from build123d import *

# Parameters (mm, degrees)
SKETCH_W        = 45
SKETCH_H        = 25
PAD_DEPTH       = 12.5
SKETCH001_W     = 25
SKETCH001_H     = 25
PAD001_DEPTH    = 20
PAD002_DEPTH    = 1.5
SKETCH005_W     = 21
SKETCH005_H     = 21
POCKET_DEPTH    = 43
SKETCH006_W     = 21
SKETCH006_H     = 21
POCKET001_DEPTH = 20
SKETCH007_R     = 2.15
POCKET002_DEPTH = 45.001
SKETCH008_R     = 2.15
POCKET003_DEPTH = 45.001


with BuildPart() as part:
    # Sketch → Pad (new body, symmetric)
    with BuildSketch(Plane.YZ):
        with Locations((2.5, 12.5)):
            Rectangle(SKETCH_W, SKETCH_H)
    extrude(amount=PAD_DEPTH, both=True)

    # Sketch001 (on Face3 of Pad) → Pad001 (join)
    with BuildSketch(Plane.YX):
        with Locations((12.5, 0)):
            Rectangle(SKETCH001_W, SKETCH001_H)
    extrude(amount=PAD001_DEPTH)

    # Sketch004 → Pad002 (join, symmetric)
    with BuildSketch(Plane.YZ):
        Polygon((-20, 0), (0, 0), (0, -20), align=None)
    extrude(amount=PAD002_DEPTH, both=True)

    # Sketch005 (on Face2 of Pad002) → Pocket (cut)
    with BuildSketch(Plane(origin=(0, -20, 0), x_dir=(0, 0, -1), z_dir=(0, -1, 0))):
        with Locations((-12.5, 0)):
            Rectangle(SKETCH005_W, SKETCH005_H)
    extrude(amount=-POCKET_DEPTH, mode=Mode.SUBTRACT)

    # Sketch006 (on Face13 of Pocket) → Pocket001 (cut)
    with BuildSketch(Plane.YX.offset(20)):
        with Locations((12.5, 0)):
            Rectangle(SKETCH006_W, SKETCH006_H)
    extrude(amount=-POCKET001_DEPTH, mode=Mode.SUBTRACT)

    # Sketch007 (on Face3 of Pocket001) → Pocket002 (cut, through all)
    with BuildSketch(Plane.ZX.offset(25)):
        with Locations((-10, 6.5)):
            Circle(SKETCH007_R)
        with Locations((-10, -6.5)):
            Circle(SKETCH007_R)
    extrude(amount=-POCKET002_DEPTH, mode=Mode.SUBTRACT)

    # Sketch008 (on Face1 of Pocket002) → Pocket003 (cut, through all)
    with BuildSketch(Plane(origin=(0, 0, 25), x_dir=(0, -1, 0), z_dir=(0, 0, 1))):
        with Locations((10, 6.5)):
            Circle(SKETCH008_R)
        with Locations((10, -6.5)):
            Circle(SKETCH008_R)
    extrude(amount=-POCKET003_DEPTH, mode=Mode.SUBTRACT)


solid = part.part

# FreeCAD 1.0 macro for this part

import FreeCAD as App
import Part
import Sketcher
Q = App.Units.Quantity

doc = App.newDocument("Part")
body = doc.addObject("PartDesign::Body", "Body")

# Sketch on YZ plane
sketch1 = body.newObject("Sketcher::SketchObject", "Sketch")
sketch1.AttachmentSupport = (doc.getObject("YZ_Plane"), [""])
sketch1.MapMode = "FlatFace"
sketch1.addGeometry([
    Part.LineSegment(App.Vector(-20, 25, 0), App.Vector(-20, 0, 0)),
    Part.LineSegment(App.Vector(-20, 0, 0), App.Vector(25, 0, 0)),
    Part.LineSegment(App.Vector(25, 0, 0), App.Vector(25, 25, 0)),
    Part.LineSegment(App.Vector(25, 25, 0), App.Vector(-20, 25, 0)),
], False)
sketch1.addConstraint([
    Sketcher.Constraint("Coincident", 0, 2, 1, 1),
    Sketcher.Constraint("Coincident", 1, 2, 2, 1),
    Sketcher.Constraint("Coincident", 2, 2, 3, 1),
    Sketcher.Constraint("Coincident", 3, 2, 0, 1),
    Sketcher.Constraint("Vertical", 0),
    Sketcher.Constraint("Horizontal", 1),
    Sketcher.Constraint("Vertical", 2),
    Sketcher.Constraint("Horizontal", 3),
    Sketcher.Constraint("PointOnObject", 0, 2, -1),
    Sketcher.Constraint("DistanceX", 1, 1, 1, 2, Q("45 mm")),
    Sketcher.Constraint("DistanceY", 0, 2, 0, 1, Q("25 mm")),
    Sketcher.Constraint("DistanceX", 0, 2, -1, 1, Q("20 mm")),
])
pad1 = body.newObject("PartDesign::Pad", "Pad")
pad1.Profile = sketch1
pad1.Length = 25
pad1.Midplane = True

# Sketch on XY plane
sketch2 = body.newObject("Sketcher::SketchObject", "Sketch001")
sketch2.AttachmentSupport = (doc.getObject("XY_Plane"), [""])
sketch2.MapMode = "FlatFace"
sketch2.addGeometry([
    Part.LineSegment(App.Vector(12, 0, 0), App.Vector(-12, 0, 0)),
    Part.LineSegment(App.Vector(-12, 0, 0), App.Vector(-12, 25, 0)),
    Part.LineSegment(App.Vector(-12, 25, 0), App.Vector(12, 25, 0)),
    Part.LineSegment(App.Vector(12, 25, 0), App.Vector(12, 0, 0)),
], False)
sketch2.addConstraint([
    Sketcher.Constraint("Coincident", 0, 2, 1, 1),
    Sketcher.Constraint("Coincident", 1, 2, 2, 1),
    Sketcher.Constraint("Coincident", 2, 2, 3, 1),
    Sketcher.Constraint("Coincident", 3, 2, 0, 1),
    Sketcher.Constraint("Horizontal", 0),
    Sketcher.Constraint("Vertical", 1),
    Sketcher.Constraint("Horizontal", 2),
    Sketcher.Constraint("Vertical", 3),
    Sketcher.Constraint("Symmetric", 0, 2, 3, 2, -1, 1),
    Sketcher.Constraint("Equal", 2, 1),
    Sketcher.Constraint("DistanceX", 0, 2, 0, 1, Q("25 mm")),
])
pad2 = body.newObject("PartDesign::Pad", "Pad001")
pad2.Profile = sketch2
pad2.Length = 20
pad2.Reversed = True

# Sketch on YZ plane
sketch3 = body.newObject("Sketcher::SketchObject", "Sketch002")
sketch3.AttachmentSupport = (doc.getObject("YZ_Plane"), [""])
sketch3.MapMode = "FlatFace"
sketch3.addGeometry([
    Part.LineSegment(App.Vector(0, 0, 0), App.Vector(-20, 0, 0)),
    Part.LineSegment(App.Vector(-20, 0, 0), App.Vector(0, -20, 0)),
    Part.LineSegment(App.Vector(0, -20, 0), App.Vector(0, 0, 0)),
], False)
sketch3.addConstraint([
    Sketcher.Constraint("Coincident", 0, 2, 1, 1),
    Sketcher.Constraint("Coincident", 1, 2, 2, 1),
    Sketcher.Constraint("Coincident", 2, 2, 0, 1),
    Sketcher.Constraint("Horizontal", 0),
    Sketcher.Constraint("Vertical", 2),
    Sketcher.Constraint("Coincident", 2, 2, -1, 1),
    Sketcher.Constraint("Equal", 0, 2),
    Sketcher.Constraint("DistanceX", 0, 2, 0, 1, Q("20 mm")),
])
pad3 = body.newObject("PartDesign::Pad", "Pad002")
pad3.Profile = sketch3
pad3.Length = 3
pad3.Midplane = True

# Sketch on XZ plane
sketch4 = body.newObject("Sketcher::SketchObject", "Sketch003")
sketch4.AttachmentSupport = (doc.getObject("XZ_Plane"), [""])
sketch4.MapMode = "FlatFace"
sketch4.AttachmentOffset = App.Placement(App.Vector(0, 0, 20), App.Rotation())
sketch4.addGeometry([
    Part.LineSegment(App.Vector(10, 23, 0), App.Vector(-10, 23, 0)),
    Part.LineSegment(App.Vector(-10, 23, 0), App.Vector(-10, 2, 0)),
    Part.LineSegment(App.Vector(-10, 2, 0), App.Vector(10, 2, 0)),
    Part.LineSegment(App.Vector(10, 2, 0), App.Vector(10, 23, 0)),
], False)
sketch4.addConstraint([
    Sketcher.Constraint("Coincident", 0, 2, 1, 1),
    Sketcher.Constraint("Coincident", 1, 2, 2, 1),
    Sketcher.Constraint("Coincident", 2, 2, 3, 1),
    Sketcher.Constraint("Coincident", 3, 2, 0, 1),
    Sketcher.Constraint("Horizontal", 0),
    Sketcher.Constraint("Vertical", 1),
    Sketcher.Constraint("Horizontal", 2),
    Sketcher.Constraint("Vertical", 3),
    Sketcher.Constraint("Equal", 2, 1),
    Sketcher.Constraint("DistanceX", 0, 2, 0, 1, Q("21 mm")),
    Sketcher.Constraint("DistanceY", -1, 1, 0, 2, Q("23 mm")),
    Sketcher.Constraint("DistanceX", 0, 2, -1, 1, Q("10.5 mm")),
])
pocket1 = body.newObject("PartDesign::Pocket", "Pocket")
pocket1.Profile = sketch4
pocket1.Length = 43

# Sketch on XY plane
sketch5 = body.newObject("Sketcher::SketchObject", "Sketch004")
sketch5.AttachmentSupport = (doc.getObject("XY_Plane"), [""])
sketch5.MapMode = "FlatFace"
sketch5.AttachmentOffset = App.Placement(App.Vector(0, 0, -20), App.Rotation())
sketch5.addGeometry([
    Part.LineSegment(App.Vector(10, 2, 0), App.Vector(-10, 2, 0)),
    Part.LineSegment(App.Vector(-10, 2, 0), App.Vector(-10, 23, 0)),
    Part.LineSegment(App.Vector(-10, 23, 0), App.Vector(10, 23, 0)),
    Part.LineSegment(App.Vector(10, 23, 0), App.Vector(10, 2, 0)),
], False)
sketch5.addConstraint([
    Sketcher.Constraint("Coincident", 0, 2, 1, 1),
    Sketcher.Constraint("Coincident", 1, 2, 2, 1),
    Sketcher.Constraint("Coincident", 2, 2, 3, 1),
    Sketcher.Constraint("Coincident", 3, 2, 0, 1),
    Sketcher.Constraint("Horizontal", 0),
    Sketcher.Constraint("Vertical", 1),
    Sketcher.Constraint("Horizontal", 2),
    Sketcher.Constraint("Vertical", 3),
    Sketcher.Constraint("Equal", 2, 1),
    Sketcher.Constraint("DistanceX", 0, 2, 0, 1, Q("21 mm")),
    Sketcher.Constraint("DistanceY", -1, 1, 0, 2, Q("2 mm")),
    Sketcher.Constraint("DistanceX", 0, 2, -1, 1, Q("10.5 mm")),
])
pocket2 = body.newObject("PartDesign::Pocket", "Pocket001")
pocket2.Profile = sketch5
pocket2.Length = 20
pocket2.Reversed = True

# Sketch on XZ plane
sketch6 = body.newObject("Sketcher::SketchObject", "Sketch005")
sketch6.AttachmentSupport = (doc.getObject("XZ_Plane"), [""])
sketch6.MapMode = "FlatFace"
sketch6.AttachmentOffset = App.Placement(App.Vector(0, 0, -25), App.Rotation())
sketch6.addGeometry([
    Part.Circle(App.Vector(6.5, -10, 0), App.Vector(0, 0, 1), 2.1),
    Part.Circle(App.Vector(-6.5, -10, 0), App.Vector(0, 0, 1), 2.1),
], False)
sketch6.addConstraint([
    Sketcher.Constraint("Equal", 0, 1),
    Sketcher.Constraint("Symmetric", 0, 3, 1, 3, -2),
    Sketcher.Constraint("Diameter", 0, Q("4.3 mm")),
    Sketcher.Constraint("DistanceY", 0, 3, -1, 1, Q("10 mm")),
    Sketcher.Constraint("DistanceX", 1, 3, 0, 3, Q("13 mm")),
])
pocket3 = body.newObject("PartDesign::Pocket", "Pocket002")
pocket3.Profile = sketch6
pocket3.Type = "ThroughAll"
pocket3.Reversed = True

# Sketch on XY plane
sketch7 = body.newObject("Sketcher::SketchObject", "Sketch006")
sketch7.AttachmentSupport = (doc.getObject("XY_Plane"), [""])
sketch7.MapMode = "FlatFace"
sketch7.AttachmentOffset = App.Placement(App.Vector(0, 0, 25), App.Rotation())
sketch7.addGeometry([
    Part.Circle(App.Vector(6.5, -10, 0), App.Vector(0, 0, 1), 2.1),
    Part.Circle(App.Vector(-6.5, -10, 0), App.Vector(0, 0, 1), 2.1),
], False)
sketch7.addConstraint([
    Sketcher.Constraint("Equal", 0, 1),
    Sketcher.Constraint("Symmetric", 0, 3, 1, 3, -2),
    Sketcher.Constraint("Diameter", 0, Q("4.3 mm")),
    Sketcher.Constraint("DistanceY", 0, 3, -1, 1, Q("10 mm")),
    Sketcher.Constraint("DistanceX", 1, 3, 0, 3, Q("13 mm")),
])
pocket4 = body.newObject("PartDesign::Pocket", "Pocket003")
pocket4.Profile = sketch7
pocket4.Type = "ThroughAll"

doc.recompute()
